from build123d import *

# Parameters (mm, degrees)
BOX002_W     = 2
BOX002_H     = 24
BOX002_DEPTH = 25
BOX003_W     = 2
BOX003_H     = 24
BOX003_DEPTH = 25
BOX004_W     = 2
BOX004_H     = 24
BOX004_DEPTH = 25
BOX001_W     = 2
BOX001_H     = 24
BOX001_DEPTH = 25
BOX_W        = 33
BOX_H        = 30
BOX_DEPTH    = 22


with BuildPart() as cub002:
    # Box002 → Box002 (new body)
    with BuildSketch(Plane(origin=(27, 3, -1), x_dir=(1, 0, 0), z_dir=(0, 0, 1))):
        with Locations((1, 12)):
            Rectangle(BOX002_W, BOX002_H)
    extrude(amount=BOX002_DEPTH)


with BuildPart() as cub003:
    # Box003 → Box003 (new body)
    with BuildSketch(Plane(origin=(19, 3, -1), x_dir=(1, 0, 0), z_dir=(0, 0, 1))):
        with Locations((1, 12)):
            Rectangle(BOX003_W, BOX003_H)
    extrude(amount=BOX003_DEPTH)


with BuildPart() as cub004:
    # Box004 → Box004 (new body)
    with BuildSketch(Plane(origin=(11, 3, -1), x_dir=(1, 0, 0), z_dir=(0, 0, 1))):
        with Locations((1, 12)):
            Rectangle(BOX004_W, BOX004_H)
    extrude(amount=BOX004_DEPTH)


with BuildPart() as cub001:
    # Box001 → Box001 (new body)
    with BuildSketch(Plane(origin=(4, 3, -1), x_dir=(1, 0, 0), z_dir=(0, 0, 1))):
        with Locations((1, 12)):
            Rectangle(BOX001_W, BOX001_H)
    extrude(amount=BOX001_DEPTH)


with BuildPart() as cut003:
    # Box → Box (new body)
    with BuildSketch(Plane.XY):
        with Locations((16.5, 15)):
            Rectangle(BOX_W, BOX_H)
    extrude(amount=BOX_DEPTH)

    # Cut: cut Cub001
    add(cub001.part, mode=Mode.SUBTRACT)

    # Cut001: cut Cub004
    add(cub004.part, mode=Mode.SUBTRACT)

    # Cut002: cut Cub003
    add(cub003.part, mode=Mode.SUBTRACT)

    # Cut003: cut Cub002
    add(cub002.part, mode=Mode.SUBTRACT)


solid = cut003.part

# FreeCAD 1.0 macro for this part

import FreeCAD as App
import Part
import Sketcher

doc = App.newDocument("Part")
params = doc.addObject("Spreadsheet::Sheet", "Params")
for row, (alias, value) in enumerate([
    ("sketch1_width", "2 mm"),
    ("sketch1_height", "24 mm"),
    ("pad1_length", "25 mm"),
    ("sketch2_width", "2 mm"),
    ("sketch2_height", "24 mm"),
    ("pad2_length", "25 mm"),
    ("sketch3_width", "2 mm"),
    ("sketch3_height", "24 mm"),
    ("pad3_length", "25 mm"),
    ("sketch4_width", "2 mm"),
    ("sketch4_height", "24 mm"),
    ("pad4_length", "25 mm"),
    ("sketch5_width", "33 mm"),
    ("sketch5_height", "30 mm"),
    ("pad5_length", "22 mm"),
], start=1):
    params.set(f"A{row}", alias)
    params.set(f"B{row}", "=" + value)
    params.setAlias(f"B{row}", alias)

body = doc.addObject("PartDesign::Body", "Body")

# Sketch on XY plane
sketch1 = body.newObject("Sketcher::SketchObject", "Sketch")
sketch1.AttachmentSupport = (doc.getObject("XY_Plane"), [""])
sketch1.MapMode = "FlatFace"
sketch1.AttachmentOffset = App.Placement(App.Vector(0, 0, -1), App.Rotation())
sketch1.addGeometry(Part.LineSegment(App.Vector(27, 27, 0), App.Vector(27, 3, 0)), False)
sketch1.addGeometry(Part.LineSegment(App.Vector(27, 3, 0), App.Vector(29, 3, 0)), False)
sketch1.addGeometry(Part.LineSegment(App.Vector(29, 3, 0), App.Vector(29, 27, 0)), False)
sketch1.addGeometry(Part.LineSegment(App.Vector(29, 27, 0), App.Vector(27, 27, 0)), False)
sketch1.addConstraint(Sketcher.Constraint("Coincident", 0, 2, 1, 1))
sketch1.addConstraint(Sketcher.Constraint("Coincident", 1, 2, 2, 1))
sketch1.addConstraint(Sketcher.Constraint("Coincident", 2, 2, 3, 1))
sketch1.addConstraint(Sketcher.Constraint("Coincident", 3, 2, 0, 1))
sketch1.addConstraint(Sketcher.Constraint("Vertical", 0))
sketch1.addConstraint(Sketcher.Constraint("Horizontal", 1))
sketch1.addConstraint(Sketcher.Constraint("Vertical", 2))
sketch1.addConstraint(Sketcher.Constraint("Horizontal", 3))
sketch1.addConstraint(Sketcher.Constraint("DistanceX", 1, 1, 1, 2, 2.0))
sketch1.addConstraint(Sketcher.Constraint("DistanceY", 0, 2, 0, 1, 24.0))
sketch1.addConstraint(Sketcher.Constraint("DistanceX", -1, 1, 0, 2, 27.0))
sketch1.addConstraint(Sketcher.Constraint("DistanceY", -1, 1, 0, 2, 3.0))
sketch1.setExpression("Constraints[8]", "Params.sketch1_width")
sketch1.setExpression("Constraints[9]", "Params.sketch1_height")
pad1 = body.newObject("PartDesign::Pad", "Pad")
pad1.Profile = sketch1
pad1.setExpression("Length", "Params.pad1_length")
body2 = doc.addObject("PartDesign::Body", "Body001")

# Sketch on XY plane
sketch2 = body2.newObject("Sketcher::SketchObject", "Sketch001")
sketch2.AttachmentSupport = (doc.getObject("XY_Plane001"), [""])
sketch2.MapMode = "FlatFace"
sketch2.AttachmentOffset = App.Placement(App.Vector(0, 0, -1), App.Rotation())
sketch2.addGeometry(Part.LineSegment(App.Vector(19, 27, 0), App.Vector(19, 3, 0)), False)
sketch2.addGeometry(Part.LineSegment(App.Vector(19, 3, 0), App.Vector(21, 3, 0)), False)
sketch2.addGeometry(Part.LineSegment(App.Vector(21, 3, 0), App.Vector(21, 27, 0)), False)
sketch2.addGeometry(Part.LineSegment(App.Vector(21, 27, 0), App.Vector(19, 27, 0)), False)
sketch2.addConstraint(Sketcher.Constraint("Coincident", 0, 2, 1, 1))
sketch2.addConstraint(Sketcher.Constraint("Coincident", 1, 2, 2, 1))
sketch2.addConstraint(Sketcher.Constraint("Coincident", 2, 2, 3, 1))
sketch2.addConstraint(Sketcher.Constraint("Coincident", 3, 2, 0, 1))
sketch2.addConstraint(Sketcher.Constraint("Vertical", 0))
sketch2.addConstraint(Sketcher.Constraint("Horizontal", 1))
sketch2.addConstraint(Sketcher.Constraint("Vertical", 2))
sketch2.addConstraint(Sketcher.Constraint("Horizontal", 3))
sketch2.addConstraint(Sketcher.Constraint("DistanceX", 1, 1, 1, 2, 2.0))
sketch2.addConstraint(Sketcher.Constraint("DistanceY", 0, 2, 0, 1, 24.0))
sketch2.addConstraint(Sketcher.Constraint("DistanceX", -1, 1, 0, 2, 19.0))
sketch2.addConstraint(Sketcher.Constraint("DistanceY", -1, 1, 0, 2, 3.0))
sketch2.setExpression("Constraints[8]", "Params.sketch2_width")
sketch2.setExpression("Constraints[9]", "Params.sketch2_height")
pad2 = body2.newObject("PartDesign::Pad", "Pad001")
pad2.Profile = sketch2
pad2.setExpression("Length", "Params.pad2_length")
body3 = doc.addObject("PartDesign::Body", "Body002")

# Sketch on XY plane
sketch3 = body3.newObject("Sketcher::SketchObject", "Sketch002")
sketch3.AttachmentSupport = (doc.getObject("XY_Plane002"), [""])
sketch3.MapMode = "FlatFace"
sketch3.AttachmentOffset = App.Placement(App.Vector(0, 0, -1), App.Rotation())
sketch3.addGeometry(Part.LineSegment(App.Vector(11, 27, 0), App.Vector(11, 3, 0)), False)
sketch3.addGeometry(Part.LineSegment(App.Vector(11, 3, 0), App.Vector(13, 3, 0)), False)
sketch3.addGeometry(Part.LineSegment(App.Vector(13, 3, 0), App.Vector(13, 27, 0)), False)
sketch3.addGeometry(Part.LineSegment(App.Vector(13, 27, 0), App.Vector(11, 27, 0)), False)
sketch3.addConstraint(Sketcher.Constraint("Coincident", 0, 2, 1, 1))
sketch3.addConstraint(Sketcher.Constraint("Coincident", 1, 2, 2, 1))
sketch3.addConstraint(Sketcher.Constraint("Coincident", 2, 2, 3, 1))
sketch3.addConstraint(Sketcher.Constraint("Coincident", 3, 2, 0, 1))
sketch3.addConstraint(Sketcher.Constraint("Vertical", 0))
sketch3.addConstraint(Sketcher.Constraint("Horizontal", 1))
sketch3.addConstraint(Sketcher.Constraint("Vertical", 2))
sketch3.addConstraint(Sketcher.Constraint("Horizontal", 3))
sketch3.addConstraint(Sketcher.Constraint("DistanceX", 1, 1, 1, 2, 2.0))
sketch3.addConstraint(Sketcher.Constraint("DistanceY", 0, 2, 0, 1, 24.0))
sketch3.addConstraint(Sketcher.Constraint("DistanceX", -1, 1, 0, 2, 11.0))
sketch3.addConstraint(Sketcher.Constraint("DistanceY", -1, 1, 0, 2, 3.0))
sketch3.setExpression("Constraints[8]", "Params.sketch3_width")
sketch3.setExpression("Constraints[9]", "Params.sketch3_height")
pad3 = body3.newObject("PartDesign::Pad", "Pad002")
pad3.Profile = sketch3
pad3.setExpression("Length", "Params.pad3_length")
body4 = doc.addObject("PartDesign::Body", "Body003")

# Sketch on XY plane
sketch4 = body4.newObject("Sketcher::SketchObject", "Sketch003")
sketch4.AttachmentSupport = (doc.getObject("XY_Plane003"), [""])
sketch4.MapMode = "FlatFace"
sketch4.AttachmentOffset = App.Placement(App.Vector(0, 0, -1), App.Rotation())
sketch4.addGeometry(Part.LineSegment(App.Vector(4, 27, 0), App.Vector(4, 3, 0)), False)
sketch4.addGeometry(Part.LineSegment(App.Vector(4, 3, 0), App.Vector(6, 3, 0)), False)
sketch4.addGeometry(Part.LineSegment(App.Vector(6, 3, 0), App.Vector(6, 27, 0)), False)
sketch4.addGeometry(Part.LineSegment(App.Vector(6, 27, 0), App.Vector(4, 27, 0)), False)
sketch4.addConstraint(Sketcher.Constraint("Coincident", 0, 2, 1, 1))
sketch4.addConstraint(Sketcher.Constraint("Coincident", 1, 2, 2, 1))
sketch4.addConstraint(Sketcher.Constraint("Coincident", 2, 2, 3, 1))
sketch4.addConstraint(Sketcher.Constraint("Coincident", 3, 2, 0, 1))
sketch4.addConstraint(Sketcher.Constraint("Vertical", 0))
sketch4.addConstraint(Sketcher.Constraint("Horizontal", 1))
sketch4.addConstraint(Sketcher.Constraint("Vertical", 2))
sketch4.addConstraint(Sketcher.Constraint("Horizontal", 3))
sketch4.addConstraint(Sketcher.Constraint("DistanceX", 1, 1, 1, 2, 2.0))
sketch4.addConstraint(Sketcher.Constraint("DistanceY", 0, 2, 0, 1, 24.0))
sketch4.addConstraint(Sketcher.Constraint("DistanceX", -1, 1, 0, 2, 4.0))
sketch4.addConstraint(Sketcher.Constraint("DistanceY", -1, 1, 0, 2, 3.0))
sketch4.setExpression("Constraints[8]", "Params.sketch4_width")
sketch4.setExpression("Constraints[9]", "Params.sketch4_height")
pad4 = body4.newObject("PartDesign::Pad", "Pad003")
pad4.Profile = sketch4
pad4.setExpression("Length", "Params.pad4_length")
body5 = doc.addObject("PartDesign::Body", "Body004")

# Sketch on XY plane
sketch5 = body5.newObject("Sketcher::SketchObject", "Sketch004")
sketch5.AttachmentSupport = (doc.getObject("XY_Plane004"), [""])
sketch5.MapMode = "FlatFace"
sketch5.addGeometry(Part.LineSegment(App.Vector(0, 30, 0), App.Vector(0, 0, 0)), False)
sketch5.addGeometry(Part.LineSegment(App.Vector(0, 0, 0), App.Vector(33, 0, 0)), False)
sketch5.addGeometry(Part.LineSegment(App.Vector(33, 0, 0), App.Vector(33, 30, 0)), False)
sketch5.addGeometry(Part.LineSegment(App.Vector(33, 30, 0), App.Vector(0, 30, 0)), False)
sketch5.addConstraint(Sketcher.Constraint("Coincident", 0, 2, 1, 1))
sketch5.addConstraint(Sketcher.Constraint("Coincident", 1, 2, 2, 1))
sketch5.addConstraint(Sketcher.Constraint("Coincident", 2, 2, 3, 1))
sketch5.addConstraint(Sketcher.Constraint("Coincident", 3, 2, 0, 1))
sketch5.addConstraint(Sketcher.Constraint("Vertical", 0))
sketch5.addConstraint(Sketcher.Constraint("Horizontal", 1))
sketch5.addConstraint(Sketcher.Constraint("Vertical", 2))
sketch5.addConstraint(Sketcher.Constraint("Horizontal", 3))
sketch5.addConstraint(Sketcher.Constraint("Coincident", 0, 2, -1, 1))
sketch5.addConstraint(Sketcher.Constraint("DistanceX", 1, 1, 1, 2, 33.0))
sketch5.addConstraint(Sketcher.Constraint("DistanceY", 0, 2, 0, 1, 30.0))
sketch5.setExpression("Constraints[9]", "Params.sketch5_width")
sketch5.setExpression("Constraints[10]", "Params.sketch5_height")
pad5 = body5.newObject("PartDesign::Pad", "Pad004")
pad5.Profile = sketch5
pad5.setExpression("Length", "Params.pad5_length")
doc.recompute()

boolean = body5.newObject("PartDesign::Boolean", "Boolean")
boolean.Type = "Cut"
boolean.addObjects([body4])
doc.recompute()

boolean2 = body5.newObject("PartDesign::Boolean", "Boolean001")
boolean2.Type = "Cut"
boolean2.addObjects([body3])
doc.recompute()

boolean3 = body5.newObject("PartDesign::Boolean", "Boolean002")
boolean3.Type = "Cut"
boolean3.addObjects([body2])
doc.recompute()

boolean4 = body5.newObject("PartDesign::Boolean", "Boolean003")
boolean4.Type = "Cut"
boolean4.addObjects([body])

doc.recompute()
